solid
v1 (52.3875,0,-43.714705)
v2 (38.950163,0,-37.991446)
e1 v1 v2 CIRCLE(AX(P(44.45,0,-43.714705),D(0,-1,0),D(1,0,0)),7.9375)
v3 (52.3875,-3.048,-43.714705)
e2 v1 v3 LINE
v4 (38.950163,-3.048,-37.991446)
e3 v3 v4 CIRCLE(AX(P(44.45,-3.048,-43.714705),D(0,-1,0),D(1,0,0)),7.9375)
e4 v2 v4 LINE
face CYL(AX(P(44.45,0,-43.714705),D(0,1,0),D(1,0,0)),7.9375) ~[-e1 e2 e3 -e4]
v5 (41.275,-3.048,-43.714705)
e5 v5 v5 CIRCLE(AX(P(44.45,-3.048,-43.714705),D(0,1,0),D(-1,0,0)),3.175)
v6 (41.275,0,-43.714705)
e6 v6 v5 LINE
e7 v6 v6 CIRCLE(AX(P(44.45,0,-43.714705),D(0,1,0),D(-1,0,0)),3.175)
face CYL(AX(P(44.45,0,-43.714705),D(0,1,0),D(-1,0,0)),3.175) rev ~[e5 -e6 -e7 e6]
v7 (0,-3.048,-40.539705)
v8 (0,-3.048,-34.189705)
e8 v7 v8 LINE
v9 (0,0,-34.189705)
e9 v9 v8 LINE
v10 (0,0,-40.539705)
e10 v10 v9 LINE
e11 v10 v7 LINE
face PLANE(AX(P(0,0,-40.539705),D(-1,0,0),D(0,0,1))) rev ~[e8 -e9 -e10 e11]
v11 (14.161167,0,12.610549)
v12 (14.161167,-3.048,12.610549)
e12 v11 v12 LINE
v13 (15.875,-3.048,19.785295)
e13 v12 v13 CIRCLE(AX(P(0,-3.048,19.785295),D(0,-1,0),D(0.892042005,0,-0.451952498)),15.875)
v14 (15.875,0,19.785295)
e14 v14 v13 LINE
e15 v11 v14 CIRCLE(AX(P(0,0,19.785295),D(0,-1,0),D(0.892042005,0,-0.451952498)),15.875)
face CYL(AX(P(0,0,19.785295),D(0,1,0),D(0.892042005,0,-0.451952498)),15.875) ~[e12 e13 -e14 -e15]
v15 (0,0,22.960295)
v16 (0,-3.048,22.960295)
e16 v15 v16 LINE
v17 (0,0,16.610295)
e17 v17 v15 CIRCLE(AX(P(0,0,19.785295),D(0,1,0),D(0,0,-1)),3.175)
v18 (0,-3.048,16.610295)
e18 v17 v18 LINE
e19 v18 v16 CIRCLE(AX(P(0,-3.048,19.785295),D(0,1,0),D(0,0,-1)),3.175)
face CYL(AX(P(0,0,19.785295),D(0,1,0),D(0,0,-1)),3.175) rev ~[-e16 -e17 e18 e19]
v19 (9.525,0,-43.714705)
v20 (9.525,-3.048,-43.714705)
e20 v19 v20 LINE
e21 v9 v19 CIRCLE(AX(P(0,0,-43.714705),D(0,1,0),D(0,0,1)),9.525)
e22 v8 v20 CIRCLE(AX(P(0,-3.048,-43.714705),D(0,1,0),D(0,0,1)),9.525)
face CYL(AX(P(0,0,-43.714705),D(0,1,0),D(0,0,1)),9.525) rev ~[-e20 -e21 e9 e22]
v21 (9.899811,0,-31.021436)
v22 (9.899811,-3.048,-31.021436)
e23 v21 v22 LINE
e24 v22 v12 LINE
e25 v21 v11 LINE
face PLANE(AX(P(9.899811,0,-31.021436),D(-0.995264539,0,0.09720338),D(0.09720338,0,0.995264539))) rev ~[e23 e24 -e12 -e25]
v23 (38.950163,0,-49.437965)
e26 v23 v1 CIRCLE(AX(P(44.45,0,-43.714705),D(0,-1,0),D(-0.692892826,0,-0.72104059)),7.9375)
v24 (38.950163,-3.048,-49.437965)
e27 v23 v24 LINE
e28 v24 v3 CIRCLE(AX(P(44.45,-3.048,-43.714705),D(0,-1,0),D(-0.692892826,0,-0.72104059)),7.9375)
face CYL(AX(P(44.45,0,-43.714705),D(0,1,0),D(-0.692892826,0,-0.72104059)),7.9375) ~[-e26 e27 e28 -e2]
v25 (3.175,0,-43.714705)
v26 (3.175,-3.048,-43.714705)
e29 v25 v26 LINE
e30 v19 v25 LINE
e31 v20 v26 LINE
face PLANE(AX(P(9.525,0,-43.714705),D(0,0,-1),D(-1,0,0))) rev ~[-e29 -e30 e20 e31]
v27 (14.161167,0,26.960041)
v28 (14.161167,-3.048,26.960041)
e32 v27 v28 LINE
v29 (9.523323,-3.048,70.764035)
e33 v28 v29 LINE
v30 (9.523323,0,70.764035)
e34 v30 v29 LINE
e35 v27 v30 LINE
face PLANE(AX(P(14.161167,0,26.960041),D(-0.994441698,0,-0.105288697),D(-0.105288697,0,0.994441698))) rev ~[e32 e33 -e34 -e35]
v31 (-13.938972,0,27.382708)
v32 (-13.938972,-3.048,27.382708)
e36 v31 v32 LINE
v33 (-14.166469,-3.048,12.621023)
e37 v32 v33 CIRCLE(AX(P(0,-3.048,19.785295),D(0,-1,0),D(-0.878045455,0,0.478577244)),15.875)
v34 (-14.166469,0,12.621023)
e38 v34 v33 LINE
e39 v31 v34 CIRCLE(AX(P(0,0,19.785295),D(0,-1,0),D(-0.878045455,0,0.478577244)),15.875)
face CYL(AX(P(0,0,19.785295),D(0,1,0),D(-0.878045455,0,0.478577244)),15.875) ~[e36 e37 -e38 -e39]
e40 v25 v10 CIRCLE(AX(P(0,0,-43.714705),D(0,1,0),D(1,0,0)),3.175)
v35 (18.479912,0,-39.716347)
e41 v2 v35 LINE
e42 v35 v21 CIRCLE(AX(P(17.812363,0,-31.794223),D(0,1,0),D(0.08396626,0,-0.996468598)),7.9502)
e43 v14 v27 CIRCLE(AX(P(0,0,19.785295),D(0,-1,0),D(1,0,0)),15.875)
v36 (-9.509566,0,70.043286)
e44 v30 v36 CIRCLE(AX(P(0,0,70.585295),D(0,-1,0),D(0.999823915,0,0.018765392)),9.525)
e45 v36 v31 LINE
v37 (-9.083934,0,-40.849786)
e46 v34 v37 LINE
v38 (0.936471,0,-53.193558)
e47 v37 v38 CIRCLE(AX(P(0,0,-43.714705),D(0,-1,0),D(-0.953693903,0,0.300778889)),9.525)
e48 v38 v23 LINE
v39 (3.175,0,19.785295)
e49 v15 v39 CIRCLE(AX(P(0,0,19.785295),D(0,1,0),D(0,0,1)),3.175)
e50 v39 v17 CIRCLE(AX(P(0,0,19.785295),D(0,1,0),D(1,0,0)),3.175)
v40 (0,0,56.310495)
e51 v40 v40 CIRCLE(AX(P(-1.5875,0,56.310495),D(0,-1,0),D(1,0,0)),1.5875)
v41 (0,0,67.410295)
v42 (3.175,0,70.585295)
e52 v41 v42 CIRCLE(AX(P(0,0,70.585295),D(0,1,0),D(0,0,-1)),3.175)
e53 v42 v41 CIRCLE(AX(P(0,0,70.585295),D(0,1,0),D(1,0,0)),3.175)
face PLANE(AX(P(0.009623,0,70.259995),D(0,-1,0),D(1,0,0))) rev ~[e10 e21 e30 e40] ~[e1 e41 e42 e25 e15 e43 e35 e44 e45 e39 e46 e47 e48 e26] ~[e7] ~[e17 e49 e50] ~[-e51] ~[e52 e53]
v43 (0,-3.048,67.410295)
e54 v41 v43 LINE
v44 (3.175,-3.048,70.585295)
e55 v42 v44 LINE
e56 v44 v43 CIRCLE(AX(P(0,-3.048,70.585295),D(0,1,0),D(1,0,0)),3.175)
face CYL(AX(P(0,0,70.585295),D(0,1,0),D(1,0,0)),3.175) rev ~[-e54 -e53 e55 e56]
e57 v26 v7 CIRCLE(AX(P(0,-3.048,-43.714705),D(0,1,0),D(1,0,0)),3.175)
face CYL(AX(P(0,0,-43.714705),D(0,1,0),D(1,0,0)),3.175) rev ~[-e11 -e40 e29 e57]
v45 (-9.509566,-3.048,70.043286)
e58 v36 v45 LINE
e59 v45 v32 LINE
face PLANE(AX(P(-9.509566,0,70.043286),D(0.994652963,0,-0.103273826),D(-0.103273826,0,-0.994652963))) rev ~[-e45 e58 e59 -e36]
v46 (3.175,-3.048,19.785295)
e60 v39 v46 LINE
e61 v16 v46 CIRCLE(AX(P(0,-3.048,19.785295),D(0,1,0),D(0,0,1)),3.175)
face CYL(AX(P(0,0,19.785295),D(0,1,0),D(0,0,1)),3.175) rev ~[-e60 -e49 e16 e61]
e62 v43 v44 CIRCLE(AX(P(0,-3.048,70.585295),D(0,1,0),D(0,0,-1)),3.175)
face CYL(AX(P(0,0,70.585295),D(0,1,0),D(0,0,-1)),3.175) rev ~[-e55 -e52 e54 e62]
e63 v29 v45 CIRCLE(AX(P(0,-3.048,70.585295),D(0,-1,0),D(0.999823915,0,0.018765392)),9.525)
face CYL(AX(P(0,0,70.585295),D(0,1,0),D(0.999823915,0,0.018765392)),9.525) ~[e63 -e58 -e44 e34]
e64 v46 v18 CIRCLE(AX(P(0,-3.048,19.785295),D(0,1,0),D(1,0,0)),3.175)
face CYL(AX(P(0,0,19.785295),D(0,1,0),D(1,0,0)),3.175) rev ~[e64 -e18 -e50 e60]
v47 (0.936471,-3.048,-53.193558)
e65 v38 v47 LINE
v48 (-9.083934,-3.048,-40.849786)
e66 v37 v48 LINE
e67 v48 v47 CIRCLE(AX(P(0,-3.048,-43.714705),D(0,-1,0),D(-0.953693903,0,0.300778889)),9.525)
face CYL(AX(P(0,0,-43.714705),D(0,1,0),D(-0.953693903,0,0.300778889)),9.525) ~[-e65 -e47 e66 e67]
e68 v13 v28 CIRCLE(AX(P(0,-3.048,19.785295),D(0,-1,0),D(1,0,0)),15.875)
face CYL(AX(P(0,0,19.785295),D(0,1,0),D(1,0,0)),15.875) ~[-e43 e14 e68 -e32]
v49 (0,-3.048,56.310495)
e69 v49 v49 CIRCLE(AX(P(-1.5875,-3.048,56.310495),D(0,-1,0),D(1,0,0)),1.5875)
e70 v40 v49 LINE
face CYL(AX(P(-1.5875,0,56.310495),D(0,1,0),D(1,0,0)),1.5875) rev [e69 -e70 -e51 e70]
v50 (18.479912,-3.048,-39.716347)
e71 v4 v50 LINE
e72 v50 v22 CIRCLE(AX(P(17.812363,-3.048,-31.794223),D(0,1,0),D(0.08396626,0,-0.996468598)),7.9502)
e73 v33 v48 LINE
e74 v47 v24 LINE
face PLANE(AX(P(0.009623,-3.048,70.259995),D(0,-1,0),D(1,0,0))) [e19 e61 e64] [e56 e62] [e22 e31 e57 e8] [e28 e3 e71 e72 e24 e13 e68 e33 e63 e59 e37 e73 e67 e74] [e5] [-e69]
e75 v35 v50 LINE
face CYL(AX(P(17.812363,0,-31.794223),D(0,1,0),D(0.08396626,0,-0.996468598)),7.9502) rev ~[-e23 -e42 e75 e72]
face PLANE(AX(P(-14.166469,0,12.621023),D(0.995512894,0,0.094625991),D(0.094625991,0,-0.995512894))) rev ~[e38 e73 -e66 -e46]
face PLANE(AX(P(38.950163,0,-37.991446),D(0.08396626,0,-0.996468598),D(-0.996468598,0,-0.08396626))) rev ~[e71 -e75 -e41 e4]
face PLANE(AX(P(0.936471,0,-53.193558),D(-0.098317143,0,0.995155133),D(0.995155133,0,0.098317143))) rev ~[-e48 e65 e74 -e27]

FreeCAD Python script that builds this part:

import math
import FreeCAD as App
import Part
import Sketcher
from FreeCAD import Vector
Q = App.Units.Quantity

doc = App.newDocument("Part")
body = doc.addObject("PartDesign::Body", "Body")

# Sketch on XZ plane
sketch1 = doc.addObject("Sketcher::SketchObject", "Sketch")
body.addObject(sketch1)
sketch1.AttachmentSupport = (doc.XZ_Plane, [""])
sketch1.MapMode = "FlatFace"
sketch1.addGeometry([
    Part.ArcOfCircle(Part.Circle(Vector(0, -43.714705, 0), Vector(0, 0, 1), 9.525), math.radians(162.495609), math.radians(275.642272)),  # 0
    Part.LineSegment(Vector(0.936471, -53.193558, 0), Vector(38.950163, -49.437965, 0)),  # 1
    Part.ArcOfCircle(Part.Circle(Vector(44.45, -43.714705, 0), Vector(0, 0, 1), 7.9375), math.radians(-133.85954), math.radians(0)),  # 2
    Part.ArcOfCircle(Part.Circle(Vector(44.45, -43.714705, 0), Vector(0, 0, 1), 7.9375), math.radians(0), math.radians(133.85954)),  # 3
    Part.LineSegment(Vector(38.950163, -37.991446, 0), Vector(18.479912, -39.716347, 0)),  # 4
    Part.ArcOfCircle(Part.Circle(Vector(17.812363, -31.794223, 0), Vector(0, 0, 1), 7.9502), math.radians(174.421849), math.radians(274.816583)),  # 5
    Part.LineSegment(Vector(9.899811, -31.021436, 0), Vector(14.161167, 12.610549, 0)),  # 6
    Part.ArcOfCircle(Part.Circle(Vector(0, 19.785295, 0), Vector(0, 0, 1), 15.875), math.radians(-26.869023), math.radians(0)),  # 7
    Part.ArcOfCircle(Part.Circle(Vector(0, 19.785295, 0), Vector(0, 0, 1), 15.875), math.radians(0), math.radians(26.869023)),  # 8
    Part.LineSegment(Vector(14.161167, 26.960041, 0), Vector(9.523323, 70.764035, 0)),  # 9
    Part.ArcOfCircle(Part.Circle(Vector(0, 70.585295, 0), Vector(0, 0, 1), 9.525), math.radians(1.075241), math.radians(183.262108)),  # 10
    Part.LineSegment(Vector(-9.509566, 70.043286, 0), Vector(-13.938972, 27.382708, 0)),  # 11
    Part.ArcOfCircle(Part.Circle(Vector(0, 19.785295, 0), Vector(0, 0, 1), 15.875), math.radians(151.407479), math.radians(206.826654)),  # 12
    Part.LineSegment(Vector(-14.166469, 12.621023, 0), Vector(-9.083934, -40.849786, 0)),  # 13
    Part.ArcOfCircle(Part.Circle(Vector(0, -43.714705, 0), Vector(0, 0, 1), 9.525), math.radians(0), math.radians(90)),  # 14
    Part.LineSegment(Vector(9.525, -43.714705, 0), Vector(3.175, -43.714705, 0)),  # 15
    Part.ArcOfCircle(Part.Circle(Vector(0, -43.714705, 0), Vector(0, 0, 1), 3.175), math.radians(90), math.radians(360)),  # 16
    Part.LineSegment(Vector(0, -40.539705, 0), Vector(0, -34.189705, 0)),  # 17
    Part.Circle(Vector(44.45, -43.714705, 0), Vector(0, 0, 1), 3.175),  # 18
    Part.ArcOfCircle(Part.Circle(Vector(0, 19.785295, 0), Vector(0, 0, 1), 3.175), math.radians(0), math.radians(90)),  # 19
    Part.ArcOfCircle(Part.Circle(Vector(0, 19.785295, 0), Vector(0, 0, 1), 3.175), math.radians(-90), math.radians(0)),  # 20
    Part.ArcOfCircle(Part.Circle(Vector(0, 19.785295, 0), Vector(0, 0, 1), 3.175), math.radians(90), math.radians(270)),  # 21
    Part.Circle(Vector(-1.5875, 56.310495, 0), Vector(0, 0, 1), 1.5875),  # 22
    Part.ArcOfCircle(Part.Circle(Vector(0, 70.585295, 0), Vector(0, 0, 1), 3.175), math.radians(0), math.radians(270)),  # 23
    Part.ArcOfCircle(Part.Circle(Vector(0, 70.585295, 0), Vector(0, 0, 1), 3.175), math.radians(-90), math.radians(0)),  # 24
], False)
sketch1.addConstraint([
    Sketcher.Constraint("Coincident", 0, 2, 1, 1),
    Sketcher.Constraint("Coincident", 1, 2, 2, 1),
    Sketcher.Constraint("Coincident", 2, 2, 3, 1),
    Sketcher.Constraint("Coincident", 3, 2, 4, 1),
    Sketcher.Constraint("Coincident", 4, 2, 5, 2),
    Sketcher.Constraint("Coincident", 5, 1, 6, 1),
    Sketcher.Constraint("Coincident", 6, 2, 7, 1),
    Sketcher.Constraint("Coincident", 7, 2, 8, 1),
    Sketcher.Constraint("Coincident", 8, 2, 9, 1),
    Sketcher.Constraint("Coincident", 9, 2, 10, 1),
    Sketcher.Constraint("Coincident", 10, 2, 11, 1),
    Sketcher.Constraint("Coincident", 11, 2, 12, 1),
    Sketcher.Constraint("Coincident", 12, 2, 13, 1),
    Sketcher.Constraint("Coincident", 13, 2, 0, 1),
    Sketcher.Constraint("Coincident", 14, 1, 15, 1),
    Sketcher.Constraint("Coincident", 15, 2, 16, 2),
    Sketcher.Constraint("Coincident", 16, 1, 17, 1),
    Sketcher.Constraint("Coincident", 17, 2, 14, 2),
    Sketcher.Constraint("Coincident", 19, 1, 20, 2),
    Sketcher.Constraint("Coincident", 20, 1, 21, 2),
    Sketcher.Constraint("Coincident", 21, 1, 19, 2),
    Sketcher.Constraint("Coincident", 23, 1, 24, 2),
    Sketcher.Constraint("Coincident", 24, 1, 23, 2),
    Sketcher.Constraint("Horizontal", 15),
    Sketcher.Constraint("Vertical", 17),
    Sketcher.Constraint("Coincident", 3, 3, 2, 3),
    Sketcher.Constraint("Coincident", 8, 3, 7, 3),
    Sketcher.Constraint("Coincident", 12, 3, 7, 3),
    Sketcher.Constraint("Coincident", 14, 3, 0, 3),
    Sketcher.Constraint("Coincident", 16, 3, 0, 3),
    Sketcher.Constraint("Coincident", 18, 3, 2, 3),
    Sketcher.Constraint("Coincident", 19, 3, 7, 3),
    Sketcher.Constraint("Coincident", 20, 3, 7, 3),
    Sketcher.Constraint("Coincident", 23, 3, 10, 3),
    Sketcher.Constraint("PointOnObject", 0, 3, -2),
    Sketcher.Constraint("PointOnObject", 7, 3, -2),
    Sketcher.Constraint("PointOnObject", 10, 3, -2),
    Sketcher.Constraint("PointOnObject", 21, 3, -2),
    Sketcher.Constraint("PointOnObject", 24, 3, -2),
    Sketcher.Constraint("PointOnObject", 16, 1, -2),
    Sketcher.Constraint("PointOnObject", 20, 1, -2),
    Sketcher.Constraint("PointOnObject", 21, 1, -2),
    Sketcher.Constraint("PointOnObject", 24, 1, -2),
    Sketcher.Constraint("Diameter", 18, Q("0.25 in")),
    Sketcher.Constraint("Diameter", 22, Q("0.125 in")),
    Sketcher.Constraint("Radius", 0, Q("0.375 in")),
    Sketcher.Constraint("Radius", 2, Q("0.3125 in")),
    Sketcher.Constraint("Radius", 5, Q("0.313 in")),
    Sketcher.Constraint("Radius", 7, Q("0.625 in")),
    Sketcher.Constraint("Radius", 10, Q("0.375 in")),
    Sketcher.Constraint("Radius", 12, Q("0.625 in")),
    Sketcher.Constraint("Radius", 14, Q("0.375 in")),
    Sketcher.Constraint("Radius", 16, Q("0.125 in")),
    Sketcher.Constraint("Radius", 19, Q("0.125 in")),
    Sketcher.Constraint("Radius", 23, Q("0.125 in")),
    Sketcher.Constraint("DistanceY", 8, 3, 10, 3, Q("2 in")),
    Sketcher.Constraint("DistanceY", 0, 3, 7, 3, Q("2.5 in")),
    Sketcher.Constraint("DistanceY", 2, 3, 7, 3, Q("2.5 in")),
    Sketcher.Constraint("DistanceX", -1, 1, 2, 3, Q("1.75 in")),
    Sketcher.Constraint("DistanceX", 22, 3, -1, 1, Q("0.0625 in")),
    Sketcher.Constraint("DistanceY", 22, 3, 10, 3, Q("0.562 in")),
    Sketcher.Constraint("DistanceY", 15, 2, 16, 1, Q("0.125 in")),
    Sketcher.Constraint("DistanceY", 24, 1, 23, 1, Q("0.125 in")),
    Sketcher.Constraint("DistanceX", 5, 3, 1, 2, Q("21.1378 mm")),
    Sketcher.Constraint("DistanceY", 4, 2, 3, 2, Q("1.724902 mm")),
    Sketcher.Constraint("DistanceX", 5, 1, 4, 2, Q("8.580101 mm")),
    Sketcher.Constraint("Distance", 1, Q("38.19876 mm")),
    Sketcher.Constraint("Distance", 9, Q("44.048831 mm")),
    Sketcher.Constraint("Distance", 11, Q("42.889912 mm")),
    Sketcher.Constraint("Distance", 13, Q("53.71182 mm")),
    Sketcher.Constraint("DistanceX", -1, 1, 0, 2, Q("0.936471 mm")),
    Sketcher.Constraint("DistanceX", -1, 1, 4, 2, Q("18.479912 mm")),
    Sketcher.Constraint("DistanceY", -1, 1, 6, 2, Q("12.610549 mm")),
    Sketcher.Constraint("DistanceY", -1, 1, 8, 2, Q("26.960041 mm")),
    Sketcher.Constraint("DistanceX", 11, 2, -1, 1, Q("13.938972 mm")),
    Sketcher.Constraint("DistanceY", -1, 1, 11, 2, Q("27.382708 mm")),
    Sketcher.Constraint("DistanceX", 12, 2, -1, 1, Q("14.166469 mm")),
    Sketcher.Constraint("DistanceY", 1, 2, 2, 2, Q("5.72326 mm")),
    Sketcher.Constraint("DistanceY", 2, 3, 3, 2, Q("5.72326 mm")),
    Sketcher.Constraint("DistanceY", -1, 1, 7, 2, Q("19.785295 mm")),
    Sketcher.Constraint("DistanceY", -1, 1, 19, 1, Q("19.785295 mm")),
])
pad1 = doc.addObject("PartDesign::Pad", "Pad")
body.addObject(pad1)
pad1.Profile = sketch1
pad1.Length = Q("0.12 in")

doc.recompute()
